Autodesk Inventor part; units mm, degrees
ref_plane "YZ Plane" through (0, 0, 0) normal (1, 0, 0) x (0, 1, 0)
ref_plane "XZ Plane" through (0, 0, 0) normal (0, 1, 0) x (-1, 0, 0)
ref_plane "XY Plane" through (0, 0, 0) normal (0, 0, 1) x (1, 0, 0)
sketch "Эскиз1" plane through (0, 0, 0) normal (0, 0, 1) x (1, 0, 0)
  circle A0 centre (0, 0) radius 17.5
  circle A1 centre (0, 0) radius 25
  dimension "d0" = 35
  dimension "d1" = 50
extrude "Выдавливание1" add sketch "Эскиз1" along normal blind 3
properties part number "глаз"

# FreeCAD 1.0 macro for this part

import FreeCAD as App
import Part
import Sketcher
Q = App.Units.Quantity

doc = App.newDocument("Part")
body = doc.addObject("PartDesign::Body", "Body")

sketch1 = doc.addObject("Sketcher::SketchObject", "Sketch")
body.addObject(sketch1)
sketch1.AttachmentSupport = (doc.XY_Plane, [""])
sketch1.MapMode = "FlatFace"
sketch1.addGeometry([
    Part.Circle(App.Vector(0, 0, 0), App.Vector(0, 0, 1), 25),
    Part.Circle(App.Vector(0, 0, 0), App.Vector(0, 0, 1), 18),
], False)
sketch1.addConstraint([
    Sketcher.Constraint("Coincident", 0, 3, -1, 1),
    Sketcher.Constraint("Coincident", 1, 3, -1, 1),
    Sketcher.Constraint("Diameter", 0, Q("50 mm")),
    Sketcher.Constraint("Diameter", 1, Q("35 mm")),
])
pad1 = doc.addObject("PartDesign::Pad", "Pad")
body.addObject(pad1)
pad1.Profile = sketch1
pad1.Length = 3

doc.recompute()
